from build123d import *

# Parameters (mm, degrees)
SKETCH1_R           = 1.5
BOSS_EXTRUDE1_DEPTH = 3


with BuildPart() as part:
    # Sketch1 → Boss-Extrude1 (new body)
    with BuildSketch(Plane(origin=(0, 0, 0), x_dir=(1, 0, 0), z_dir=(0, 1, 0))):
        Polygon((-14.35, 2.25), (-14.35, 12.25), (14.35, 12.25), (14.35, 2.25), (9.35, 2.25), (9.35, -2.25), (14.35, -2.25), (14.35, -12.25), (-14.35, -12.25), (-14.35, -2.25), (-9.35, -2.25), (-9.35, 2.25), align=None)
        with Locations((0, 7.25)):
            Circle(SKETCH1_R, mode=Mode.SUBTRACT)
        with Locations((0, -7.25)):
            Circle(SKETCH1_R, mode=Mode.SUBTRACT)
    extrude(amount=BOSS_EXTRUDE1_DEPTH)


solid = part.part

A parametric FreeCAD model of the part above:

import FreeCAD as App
import Part
import Sketcher
Q = App.Units.Quantity


def add_polygon(sketch, points):
    """Adds a closed chain of lines whose ends are joined by coincident constraints."""
    first, n = sketch.GeometryCount, len(points)
    for a, b in zip(points, points[1:] + points[:1]):
        sketch.addGeometry(Part.LineSegment(App.Vector(*a, 0), App.Vector(*b, 0)), False)
    for i in range(n):
        sketch.addConstraint(Sketcher.Constraint("Coincident", first + i, 2, first + (i + 1) % n, 1))

doc = App.newDocument("Part")
body = doc.addObject("PartDesign::Body", "Body")

sketch1 = body.newObject("Sketcher::SketchObject", "Sketch")
sketch1.AttachmentSupport = (doc.getObject("XZ_Plane"), [""])
sketch1.MapMode = "FlatFace"
add_polygon(sketch1, [(-14.35, -12.25), (-14.35, -2.25), (-9.35, -2.25), (-9.35, 2.25), (-14.35, 2.25), (-14.35, 12.25), (14.35, 12.25), (14.35, 2.25), (9.35, 2.25), (9.35, -2.25), (14.35, -2.25), (14.35, -12.25)])
sketch1.addGeometry(Part.Circle(App.Vector(0, 7.25, 0), App.Vector(0, 0, 1), 1.5), False)
sketch1.addGeometry(Part.Circle(App.Vector(0, -7.25, 0), App.Vector(0, 0, 1), 1.5), False)
sketch1.addConstraint(Sketcher.Constraint("Vertical", 0))
sketch1.addConstraint(Sketcher.Constraint("Horizontal", 1))
sketch1.addConstraint(Sketcher.Constraint("Vertical", 2))
sketch1.addConstraint(Sketcher.Constraint("Horizontal", 3))
sketch1.addConstraint(Sketcher.Constraint("Vertical", 4))
sketch1.addConstraint(Sketcher.Constraint("Horizontal", 5))
sketch1.addConstraint(Sketcher.Constraint("Vertical", 6))
sketch1.addConstraint(Sketcher.Constraint("Horizontal", 7))
sketch1.addConstraint(Sketcher.Constraint("Vertical", 8))
sketch1.addConstraint(Sketcher.Constraint("Horizontal", 9))
sketch1.addConstraint(Sketcher.Constraint("Vertical", 10))
sketch1.addConstraint(Sketcher.Constraint("Horizontal", 11))
sketch1.addConstraint(Sketcher.Constraint("Equal", 12, 13))
sketch1.addConstraint(Sketcher.Constraint("Symmetric", 12, 3, 13, 3, -1, 1))
sketch1.addConstraint(Sketcher.Constraint("Symmetric", 0, 2, 6, 2, -1, 1))
sketch1.addConstraint(Sketcher.Constraint("Symmetric", 2, 2, 8, 2, -1, 1))
sketch1.addConstraint(Sketcher.Constraint("Symmetric", 4, 2, 10, 2, -1, 1))
sketch1.addConstraint(Sketcher.Constraint("Symmetric", 3, 2, 6, 2, -2))
sketch1.addConstraint(Sketcher.Constraint("PointOnObject", 12, 3, -2))
sketch1.addConstraint(Sketcher.Constraint("Diameter", 12, Q("3 mm")))
sketch1.addConstraint(Sketcher.Constraint("DistanceX", 1, 1, 1, 2, Q("5 mm")))
sketch1.addConstraint(Sketcher.Constraint("DistanceY", 0, 1, 0, 2, Q("10 mm")))
sketch1.addConstraint(Sketcher.Constraint("DistanceX", 5, 1, 5, 2, Q("28.7 mm")))
sketch1.addConstraint(Sketcher.Constraint("DistanceY", 2, 1, 2, 2, Q("4.5 mm")))
sketch1.addConstraint(Sketcher.Constraint("DistanceY", 13, 3, 0, 2, Q("5 mm")))
pad1 = body.newObject("PartDesign::Pad", "Pad")
pad1.Profile = sketch1
pad1.Length = 3
pad1.Reversed = True

doc.recompute()
